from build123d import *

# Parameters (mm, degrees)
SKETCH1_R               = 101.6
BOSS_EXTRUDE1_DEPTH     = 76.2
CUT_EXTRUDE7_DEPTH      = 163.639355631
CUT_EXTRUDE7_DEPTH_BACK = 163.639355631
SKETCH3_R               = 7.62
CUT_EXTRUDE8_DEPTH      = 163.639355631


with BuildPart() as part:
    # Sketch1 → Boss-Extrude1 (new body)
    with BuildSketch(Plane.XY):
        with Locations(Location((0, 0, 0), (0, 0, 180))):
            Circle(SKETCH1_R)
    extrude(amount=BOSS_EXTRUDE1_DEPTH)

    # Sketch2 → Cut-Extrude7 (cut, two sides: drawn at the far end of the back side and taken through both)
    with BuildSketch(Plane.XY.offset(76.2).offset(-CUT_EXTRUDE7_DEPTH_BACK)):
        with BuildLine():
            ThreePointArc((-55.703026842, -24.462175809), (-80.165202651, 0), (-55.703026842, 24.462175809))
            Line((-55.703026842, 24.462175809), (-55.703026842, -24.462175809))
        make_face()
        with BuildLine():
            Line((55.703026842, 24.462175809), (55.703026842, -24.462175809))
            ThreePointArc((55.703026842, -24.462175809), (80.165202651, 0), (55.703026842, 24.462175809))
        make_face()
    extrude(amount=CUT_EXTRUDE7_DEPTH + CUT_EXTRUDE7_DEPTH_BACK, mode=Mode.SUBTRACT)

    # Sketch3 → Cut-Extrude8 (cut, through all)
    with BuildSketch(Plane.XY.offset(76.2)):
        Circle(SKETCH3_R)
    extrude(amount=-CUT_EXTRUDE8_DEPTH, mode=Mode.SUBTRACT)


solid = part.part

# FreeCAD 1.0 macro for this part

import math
import FreeCAD as App
import Part
import Sketcher
Q = App.Units.Quantity

doc = App.newDocument("Part")
body = doc.addObject("PartDesign::Body", "Body")

sketch1 = doc.addObject("Sketcher::SketchObject", "Sketch")
body.addObject(sketch1)
sketch1.AttachmentSupport = (doc.XY_Plane, [""])
sketch1.MapMode = "FlatFace"
sketch1.addGeometry(Part.Circle(App.Vector(0, 0, 0), App.Vector(0, 0, 1), 102), False)
sketch1.addConstraint([
    Sketcher.Constraint("Coincident", 0, 3, -1, 1),
    Sketcher.Constraint("Diameter", 0, Q("8 in")),
])
pad1 = doc.addObject("PartDesign::Pad", "Pad")
body.addObject(pad1)
pad1.Profile = sketch1
pad1.Length = Q("3 in")

sketch2 = doc.addObject("Sketcher::SketchObject", "Sketch001")
body.addObject(sketch2)
sketch2.AttachmentSupport = (doc.XY_Plane, [""])
sketch2.MapMode = "FlatFace"
sketch2.AttachmentOffset = App.Placement(App.Vector(0, 0, 3 * 25.4), App.Rotation())
sketch2.addGeometry([
    Part.ArcOfCircle(Part.Circle(App.Vector(-56, 0, 0), App.Vector(0, 0, 1), 24), math.radians(90), math.radians(270)),
    Part.LineSegment(App.Vector(-56, -24, 0), App.Vector(-56, 24, 0)),
    Part.LineSegment(App.Vector(56, 24, 0), App.Vector(56, -24, 0)),
    Part.ArcOfCircle(Part.Circle(App.Vector(56, 0, 0), App.Vector(0, 0, 1), 24), math.radians(-90), math.radians(90)),
], False)
sketch2.addConstraint([
    Sketcher.Constraint("Coincident", 0, 1, 1, 2),
    Sketcher.Constraint("Coincident", 1, 1, 0, 2),
    Sketcher.Constraint("Coincident", 2, 1, 3, 2),
    Sketcher.Constraint("Coincident", 3, 1, 2, 2),
    Sketcher.Constraint("Vertical", 1),
    Sketcher.Constraint("Vertical", 2),
    Sketcher.Constraint("Equal", 0, 3),
    Sketcher.Constraint("Symmetric", 0, 3, 3, 3, -1, 1),
    Sketcher.Constraint("Symmetric", 0, 1, 2, 1, -2),
    Sketcher.Constraint("Vertical", 3, 3, 2, 1),
    Sketcher.Constraint("Radius", 0, Q("24.462176 mm")),
    Sketcher.Constraint("DistanceX", 0, 3, -1, 1, Q("55.703027 mm")),
])
pocket1 = doc.addObject("PartDesign::Pocket", "Pocket")
body.addObject(pocket1)
pocket1.Profile = sketch2
pocket1.Type = "ThroughAll"
pocket1.Midplane = True

sketch3 = doc.addObject("Sketcher::SketchObject", "Sketch002")
body.addObject(sketch3)
sketch3.AttachmentSupport = (doc.XY_Plane, [""])
sketch3.MapMode = "FlatFace"
sketch3.AttachmentOffset = App.Placement(App.Vector(0, 0, 3 * 25.4), App.Rotation())
sketch3.addGeometry(Part.Circle(App.Vector(0, 0, 0), App.Vector(0, 0, 1), 8), False)
sketch3.addConstraint([
    Sketcher.Constraint("Coincident", 0, 3, -1, 1),
    Sketcher.Constraint("Diameter", 0, Q("0.6 in")),
])
pocket2 = doc.addObject("PartDesign::Pocket", "Pocket001")
body.addObject(pocket2)
pocket2.Profile = sketch3
pocket2.Type = "ThroughAll"

doc.recompute()
